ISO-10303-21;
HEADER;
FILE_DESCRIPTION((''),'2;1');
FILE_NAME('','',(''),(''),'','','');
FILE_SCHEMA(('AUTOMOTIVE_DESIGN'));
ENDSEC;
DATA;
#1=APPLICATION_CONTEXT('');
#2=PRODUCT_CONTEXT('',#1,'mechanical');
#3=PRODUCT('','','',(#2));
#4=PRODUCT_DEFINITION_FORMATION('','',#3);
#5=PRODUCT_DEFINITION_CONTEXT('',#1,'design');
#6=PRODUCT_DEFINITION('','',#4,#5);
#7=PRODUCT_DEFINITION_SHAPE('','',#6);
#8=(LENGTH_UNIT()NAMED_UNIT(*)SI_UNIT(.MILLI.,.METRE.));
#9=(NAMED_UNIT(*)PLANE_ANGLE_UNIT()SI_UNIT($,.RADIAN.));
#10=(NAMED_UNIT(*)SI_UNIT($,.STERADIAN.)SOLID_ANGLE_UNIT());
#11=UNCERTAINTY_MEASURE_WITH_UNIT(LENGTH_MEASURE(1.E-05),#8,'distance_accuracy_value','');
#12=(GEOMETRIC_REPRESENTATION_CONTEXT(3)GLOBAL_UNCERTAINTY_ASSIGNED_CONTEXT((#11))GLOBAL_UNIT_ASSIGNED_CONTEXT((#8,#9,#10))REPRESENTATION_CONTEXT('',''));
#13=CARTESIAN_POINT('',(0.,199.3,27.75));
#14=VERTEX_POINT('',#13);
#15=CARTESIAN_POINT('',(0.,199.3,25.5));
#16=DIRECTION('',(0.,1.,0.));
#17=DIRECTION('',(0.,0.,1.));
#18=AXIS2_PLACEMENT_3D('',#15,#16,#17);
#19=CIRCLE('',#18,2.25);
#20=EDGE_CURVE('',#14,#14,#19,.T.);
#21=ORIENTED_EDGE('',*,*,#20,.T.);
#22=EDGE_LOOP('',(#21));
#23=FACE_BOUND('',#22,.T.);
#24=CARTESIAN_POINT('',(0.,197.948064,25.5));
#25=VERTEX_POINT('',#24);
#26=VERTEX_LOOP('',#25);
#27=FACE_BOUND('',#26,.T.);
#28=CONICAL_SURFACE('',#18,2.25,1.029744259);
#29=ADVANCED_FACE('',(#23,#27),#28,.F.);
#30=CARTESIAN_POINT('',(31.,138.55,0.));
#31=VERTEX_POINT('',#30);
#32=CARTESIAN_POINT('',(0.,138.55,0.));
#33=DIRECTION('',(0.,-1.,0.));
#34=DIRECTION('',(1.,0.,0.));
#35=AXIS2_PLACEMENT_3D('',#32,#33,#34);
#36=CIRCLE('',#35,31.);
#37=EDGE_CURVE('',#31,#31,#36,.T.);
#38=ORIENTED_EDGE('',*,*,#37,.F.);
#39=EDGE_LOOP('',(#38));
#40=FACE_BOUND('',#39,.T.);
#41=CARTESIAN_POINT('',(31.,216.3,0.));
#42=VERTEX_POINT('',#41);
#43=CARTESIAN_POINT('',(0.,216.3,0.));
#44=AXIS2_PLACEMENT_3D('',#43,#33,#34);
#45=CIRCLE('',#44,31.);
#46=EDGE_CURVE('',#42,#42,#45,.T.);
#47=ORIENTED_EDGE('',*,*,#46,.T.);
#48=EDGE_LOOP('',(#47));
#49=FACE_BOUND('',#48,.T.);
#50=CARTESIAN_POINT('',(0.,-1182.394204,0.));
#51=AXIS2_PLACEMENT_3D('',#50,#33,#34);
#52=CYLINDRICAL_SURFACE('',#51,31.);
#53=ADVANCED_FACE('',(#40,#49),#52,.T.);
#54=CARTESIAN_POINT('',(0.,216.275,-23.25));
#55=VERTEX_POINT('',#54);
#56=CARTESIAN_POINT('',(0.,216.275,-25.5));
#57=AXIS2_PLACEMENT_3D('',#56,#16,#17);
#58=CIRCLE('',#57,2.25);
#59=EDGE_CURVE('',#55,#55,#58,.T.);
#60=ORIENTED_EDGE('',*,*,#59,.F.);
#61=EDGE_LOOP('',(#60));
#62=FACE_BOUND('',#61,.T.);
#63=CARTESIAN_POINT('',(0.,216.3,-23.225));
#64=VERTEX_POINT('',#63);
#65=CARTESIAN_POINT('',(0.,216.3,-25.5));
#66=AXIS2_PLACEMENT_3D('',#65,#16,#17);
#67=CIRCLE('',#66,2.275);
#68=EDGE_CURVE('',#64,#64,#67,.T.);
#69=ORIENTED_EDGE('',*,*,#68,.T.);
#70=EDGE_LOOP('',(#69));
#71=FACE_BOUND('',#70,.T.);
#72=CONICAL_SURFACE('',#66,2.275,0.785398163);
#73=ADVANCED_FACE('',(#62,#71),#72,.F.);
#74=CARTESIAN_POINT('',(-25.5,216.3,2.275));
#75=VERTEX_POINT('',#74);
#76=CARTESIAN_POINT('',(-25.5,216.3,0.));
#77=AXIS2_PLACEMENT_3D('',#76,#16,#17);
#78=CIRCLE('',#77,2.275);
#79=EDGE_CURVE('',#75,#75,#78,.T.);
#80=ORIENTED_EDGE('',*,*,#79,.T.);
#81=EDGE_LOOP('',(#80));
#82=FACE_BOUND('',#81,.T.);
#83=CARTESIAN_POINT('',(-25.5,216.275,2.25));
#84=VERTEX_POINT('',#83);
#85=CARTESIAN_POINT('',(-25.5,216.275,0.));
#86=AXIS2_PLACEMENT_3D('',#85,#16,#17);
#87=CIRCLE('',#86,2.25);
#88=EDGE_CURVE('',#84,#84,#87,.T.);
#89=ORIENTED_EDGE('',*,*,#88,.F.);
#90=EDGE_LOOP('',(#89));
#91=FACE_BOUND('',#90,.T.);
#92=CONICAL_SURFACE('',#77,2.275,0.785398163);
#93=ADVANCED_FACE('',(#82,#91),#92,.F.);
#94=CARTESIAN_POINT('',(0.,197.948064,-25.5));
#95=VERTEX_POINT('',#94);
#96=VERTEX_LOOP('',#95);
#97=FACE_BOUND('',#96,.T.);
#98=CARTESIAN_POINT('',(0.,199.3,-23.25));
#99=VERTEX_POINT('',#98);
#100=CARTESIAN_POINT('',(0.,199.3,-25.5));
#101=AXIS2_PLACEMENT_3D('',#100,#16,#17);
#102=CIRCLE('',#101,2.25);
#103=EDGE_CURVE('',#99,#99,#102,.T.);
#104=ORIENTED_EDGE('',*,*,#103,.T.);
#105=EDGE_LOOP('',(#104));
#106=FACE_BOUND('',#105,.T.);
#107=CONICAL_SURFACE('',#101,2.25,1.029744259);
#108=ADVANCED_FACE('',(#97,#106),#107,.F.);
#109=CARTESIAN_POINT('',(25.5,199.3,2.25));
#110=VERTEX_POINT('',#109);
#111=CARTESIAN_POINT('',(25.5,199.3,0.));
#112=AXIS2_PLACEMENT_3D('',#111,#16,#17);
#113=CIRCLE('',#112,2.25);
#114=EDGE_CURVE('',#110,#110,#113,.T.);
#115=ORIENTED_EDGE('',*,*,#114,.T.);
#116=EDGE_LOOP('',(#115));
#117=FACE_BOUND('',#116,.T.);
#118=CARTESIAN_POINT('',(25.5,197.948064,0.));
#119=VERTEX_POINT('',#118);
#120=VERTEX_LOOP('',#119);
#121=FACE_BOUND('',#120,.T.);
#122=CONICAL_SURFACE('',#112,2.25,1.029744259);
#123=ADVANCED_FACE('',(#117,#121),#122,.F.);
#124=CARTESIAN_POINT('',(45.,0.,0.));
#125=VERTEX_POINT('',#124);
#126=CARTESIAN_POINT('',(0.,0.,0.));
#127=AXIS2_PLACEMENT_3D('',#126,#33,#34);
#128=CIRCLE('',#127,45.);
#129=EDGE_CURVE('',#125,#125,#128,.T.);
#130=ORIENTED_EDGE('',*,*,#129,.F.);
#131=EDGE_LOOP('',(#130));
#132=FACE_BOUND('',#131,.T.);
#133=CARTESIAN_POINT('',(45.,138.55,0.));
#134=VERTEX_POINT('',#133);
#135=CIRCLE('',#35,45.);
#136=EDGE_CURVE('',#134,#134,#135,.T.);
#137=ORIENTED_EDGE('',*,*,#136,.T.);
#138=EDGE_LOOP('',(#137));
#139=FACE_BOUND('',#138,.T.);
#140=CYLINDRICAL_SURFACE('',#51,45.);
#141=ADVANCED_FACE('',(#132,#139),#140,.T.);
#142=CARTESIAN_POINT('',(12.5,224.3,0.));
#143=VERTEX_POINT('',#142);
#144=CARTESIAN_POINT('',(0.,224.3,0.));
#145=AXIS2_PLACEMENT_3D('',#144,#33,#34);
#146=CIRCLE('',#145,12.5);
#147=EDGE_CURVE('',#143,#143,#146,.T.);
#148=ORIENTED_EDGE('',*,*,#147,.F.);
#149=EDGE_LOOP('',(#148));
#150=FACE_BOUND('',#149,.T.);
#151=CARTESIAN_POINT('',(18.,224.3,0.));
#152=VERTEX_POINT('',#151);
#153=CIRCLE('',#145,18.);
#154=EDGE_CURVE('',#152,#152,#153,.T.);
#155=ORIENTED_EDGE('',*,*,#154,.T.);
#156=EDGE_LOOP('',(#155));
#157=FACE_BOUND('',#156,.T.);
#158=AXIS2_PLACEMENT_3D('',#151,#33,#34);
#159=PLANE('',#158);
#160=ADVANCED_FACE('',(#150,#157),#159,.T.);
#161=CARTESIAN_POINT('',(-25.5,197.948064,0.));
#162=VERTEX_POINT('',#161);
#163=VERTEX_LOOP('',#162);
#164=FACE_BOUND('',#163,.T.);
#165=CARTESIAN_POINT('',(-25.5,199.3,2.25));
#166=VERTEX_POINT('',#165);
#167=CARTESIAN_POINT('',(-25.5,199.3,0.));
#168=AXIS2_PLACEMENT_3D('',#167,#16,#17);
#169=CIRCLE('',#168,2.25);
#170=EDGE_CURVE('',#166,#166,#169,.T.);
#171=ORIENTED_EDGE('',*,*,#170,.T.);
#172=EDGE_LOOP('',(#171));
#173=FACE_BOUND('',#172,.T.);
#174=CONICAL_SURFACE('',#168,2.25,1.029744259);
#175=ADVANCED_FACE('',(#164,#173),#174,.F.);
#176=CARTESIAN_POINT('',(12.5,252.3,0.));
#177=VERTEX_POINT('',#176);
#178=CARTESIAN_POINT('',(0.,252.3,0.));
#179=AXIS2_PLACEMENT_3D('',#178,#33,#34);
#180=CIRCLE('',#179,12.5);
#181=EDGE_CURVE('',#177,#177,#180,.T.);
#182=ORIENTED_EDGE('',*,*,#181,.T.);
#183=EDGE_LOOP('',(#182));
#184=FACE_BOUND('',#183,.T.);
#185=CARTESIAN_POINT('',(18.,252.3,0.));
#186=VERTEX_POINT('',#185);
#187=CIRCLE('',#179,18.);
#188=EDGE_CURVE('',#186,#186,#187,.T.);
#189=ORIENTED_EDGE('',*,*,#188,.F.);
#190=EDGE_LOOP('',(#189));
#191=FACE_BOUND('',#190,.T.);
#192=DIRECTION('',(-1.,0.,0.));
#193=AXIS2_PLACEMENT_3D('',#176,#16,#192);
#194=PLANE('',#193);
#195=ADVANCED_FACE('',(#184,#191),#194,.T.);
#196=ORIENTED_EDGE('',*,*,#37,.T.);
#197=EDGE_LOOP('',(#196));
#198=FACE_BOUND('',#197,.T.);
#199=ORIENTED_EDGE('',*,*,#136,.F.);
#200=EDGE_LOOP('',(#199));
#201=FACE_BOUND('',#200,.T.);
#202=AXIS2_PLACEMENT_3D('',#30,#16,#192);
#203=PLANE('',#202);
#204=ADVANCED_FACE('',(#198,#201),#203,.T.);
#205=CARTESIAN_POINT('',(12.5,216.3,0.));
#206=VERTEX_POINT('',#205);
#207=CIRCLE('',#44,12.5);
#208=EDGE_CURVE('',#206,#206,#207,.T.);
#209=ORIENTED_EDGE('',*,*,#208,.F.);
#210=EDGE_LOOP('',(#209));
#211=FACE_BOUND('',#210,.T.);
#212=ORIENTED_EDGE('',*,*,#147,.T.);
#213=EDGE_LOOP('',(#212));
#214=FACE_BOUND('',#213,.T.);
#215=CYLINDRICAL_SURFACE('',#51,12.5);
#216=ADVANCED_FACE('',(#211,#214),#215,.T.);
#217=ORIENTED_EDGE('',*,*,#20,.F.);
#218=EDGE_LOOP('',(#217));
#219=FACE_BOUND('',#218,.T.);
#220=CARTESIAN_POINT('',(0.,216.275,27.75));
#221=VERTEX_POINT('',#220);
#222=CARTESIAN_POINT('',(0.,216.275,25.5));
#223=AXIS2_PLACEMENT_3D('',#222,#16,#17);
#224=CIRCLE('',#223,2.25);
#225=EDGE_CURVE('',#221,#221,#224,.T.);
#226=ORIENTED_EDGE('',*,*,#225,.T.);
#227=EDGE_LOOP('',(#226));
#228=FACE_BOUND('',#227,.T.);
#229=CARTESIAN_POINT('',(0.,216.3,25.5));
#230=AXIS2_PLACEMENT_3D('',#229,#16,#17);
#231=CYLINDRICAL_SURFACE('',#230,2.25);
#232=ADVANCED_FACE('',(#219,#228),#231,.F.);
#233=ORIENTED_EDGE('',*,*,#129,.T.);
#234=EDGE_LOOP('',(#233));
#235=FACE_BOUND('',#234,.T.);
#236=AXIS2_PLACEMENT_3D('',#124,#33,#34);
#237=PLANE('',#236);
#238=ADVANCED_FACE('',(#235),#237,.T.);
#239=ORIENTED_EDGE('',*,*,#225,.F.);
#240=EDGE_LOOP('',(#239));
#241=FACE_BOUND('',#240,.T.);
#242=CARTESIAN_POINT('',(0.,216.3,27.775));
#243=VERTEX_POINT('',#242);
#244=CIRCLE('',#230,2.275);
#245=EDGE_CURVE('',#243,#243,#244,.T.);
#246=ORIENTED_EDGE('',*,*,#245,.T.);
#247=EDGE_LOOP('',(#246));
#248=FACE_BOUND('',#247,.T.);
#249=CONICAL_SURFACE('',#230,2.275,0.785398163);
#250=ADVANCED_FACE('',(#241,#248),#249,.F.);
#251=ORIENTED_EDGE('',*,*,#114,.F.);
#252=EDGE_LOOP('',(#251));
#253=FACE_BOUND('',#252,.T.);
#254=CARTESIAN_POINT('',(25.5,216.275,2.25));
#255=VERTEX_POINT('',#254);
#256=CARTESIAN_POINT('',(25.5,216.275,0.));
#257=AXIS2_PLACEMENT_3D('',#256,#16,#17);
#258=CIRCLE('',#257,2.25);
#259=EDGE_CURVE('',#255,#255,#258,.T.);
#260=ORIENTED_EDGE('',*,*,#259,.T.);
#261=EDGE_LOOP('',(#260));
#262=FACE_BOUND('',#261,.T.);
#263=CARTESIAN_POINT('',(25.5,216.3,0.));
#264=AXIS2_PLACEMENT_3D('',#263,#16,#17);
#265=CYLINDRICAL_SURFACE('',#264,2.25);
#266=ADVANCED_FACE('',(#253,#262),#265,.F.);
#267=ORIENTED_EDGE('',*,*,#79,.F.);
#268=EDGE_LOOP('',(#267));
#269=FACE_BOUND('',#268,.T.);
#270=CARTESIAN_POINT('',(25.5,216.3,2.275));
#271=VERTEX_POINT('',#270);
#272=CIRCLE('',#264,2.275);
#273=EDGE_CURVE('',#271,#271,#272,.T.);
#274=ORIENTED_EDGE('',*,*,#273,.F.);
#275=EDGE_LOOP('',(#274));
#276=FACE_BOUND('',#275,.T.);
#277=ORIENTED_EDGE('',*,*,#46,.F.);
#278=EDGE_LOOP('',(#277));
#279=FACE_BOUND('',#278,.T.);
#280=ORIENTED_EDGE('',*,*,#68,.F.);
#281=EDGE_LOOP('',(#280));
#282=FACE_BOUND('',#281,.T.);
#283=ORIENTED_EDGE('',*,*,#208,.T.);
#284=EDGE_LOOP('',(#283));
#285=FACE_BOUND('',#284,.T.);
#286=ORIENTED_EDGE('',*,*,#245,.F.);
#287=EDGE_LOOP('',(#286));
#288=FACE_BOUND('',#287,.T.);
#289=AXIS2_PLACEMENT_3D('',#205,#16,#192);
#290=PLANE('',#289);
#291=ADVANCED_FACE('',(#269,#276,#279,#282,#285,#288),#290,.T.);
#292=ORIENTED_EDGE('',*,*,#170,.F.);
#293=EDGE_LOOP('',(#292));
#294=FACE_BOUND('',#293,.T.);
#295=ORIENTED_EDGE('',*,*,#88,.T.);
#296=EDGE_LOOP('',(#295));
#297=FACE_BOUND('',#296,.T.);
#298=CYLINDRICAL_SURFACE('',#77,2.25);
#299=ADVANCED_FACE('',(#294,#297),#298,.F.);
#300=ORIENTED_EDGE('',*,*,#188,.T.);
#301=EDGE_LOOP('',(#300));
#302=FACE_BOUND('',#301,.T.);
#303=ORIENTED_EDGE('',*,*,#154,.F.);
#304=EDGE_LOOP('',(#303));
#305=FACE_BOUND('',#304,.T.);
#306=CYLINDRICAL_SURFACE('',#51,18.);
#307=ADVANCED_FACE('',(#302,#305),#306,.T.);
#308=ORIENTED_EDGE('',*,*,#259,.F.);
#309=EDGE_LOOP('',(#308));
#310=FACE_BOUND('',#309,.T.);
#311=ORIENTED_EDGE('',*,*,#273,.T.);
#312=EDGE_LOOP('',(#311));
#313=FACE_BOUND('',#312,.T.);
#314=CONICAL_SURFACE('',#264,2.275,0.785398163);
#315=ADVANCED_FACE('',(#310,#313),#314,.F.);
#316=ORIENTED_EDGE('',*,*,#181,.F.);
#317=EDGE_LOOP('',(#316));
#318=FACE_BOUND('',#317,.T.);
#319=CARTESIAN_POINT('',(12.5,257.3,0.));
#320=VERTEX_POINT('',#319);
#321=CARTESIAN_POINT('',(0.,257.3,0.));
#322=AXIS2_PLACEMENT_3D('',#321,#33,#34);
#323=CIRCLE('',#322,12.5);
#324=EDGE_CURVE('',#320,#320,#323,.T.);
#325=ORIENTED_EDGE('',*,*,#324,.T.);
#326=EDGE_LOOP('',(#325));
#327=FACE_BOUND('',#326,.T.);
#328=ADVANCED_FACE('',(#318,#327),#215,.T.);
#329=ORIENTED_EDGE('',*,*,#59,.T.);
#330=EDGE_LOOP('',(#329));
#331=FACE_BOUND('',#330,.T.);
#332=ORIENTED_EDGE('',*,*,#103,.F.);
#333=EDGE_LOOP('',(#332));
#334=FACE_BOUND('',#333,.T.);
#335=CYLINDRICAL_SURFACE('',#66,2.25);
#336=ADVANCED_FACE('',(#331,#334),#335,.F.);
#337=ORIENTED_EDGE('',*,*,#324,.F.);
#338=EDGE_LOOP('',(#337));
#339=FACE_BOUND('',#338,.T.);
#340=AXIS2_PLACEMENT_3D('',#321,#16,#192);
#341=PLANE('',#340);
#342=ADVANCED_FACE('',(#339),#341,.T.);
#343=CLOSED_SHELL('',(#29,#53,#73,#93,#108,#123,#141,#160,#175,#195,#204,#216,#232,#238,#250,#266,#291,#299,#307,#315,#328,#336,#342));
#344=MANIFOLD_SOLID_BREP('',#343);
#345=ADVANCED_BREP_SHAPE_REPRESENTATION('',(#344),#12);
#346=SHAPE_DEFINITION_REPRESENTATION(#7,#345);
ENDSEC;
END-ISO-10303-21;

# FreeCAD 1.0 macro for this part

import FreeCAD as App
import Part
import Sketcher
Q = App.Units.Quantity

doc = App.newDocument("Part")
body = doc.addObject("PartDesign::Body", "Body")

# Sketch on XY plane
sketch1 = body.newObject("Sketcher::SketchObject", "Sketch")
sketch1.AttachmentSupport = (doc.getObject("XY_Plane"), [""])
sketch1.MapMode = "FlatFace"
sketch1.addGeometry([
    Part.LineSegment(App.Vector(12, 257, 0), App.Vector(0, 257, 0)),  # 0
    Part.LineSegment(App.Vector(0, 257, 0), App.Vector(0, 0, 0)),  # 1
    Part.LineSegment(App.Vector(0, 0, 0), App.Vector(45, 0, 0)),  # 2
    Part.LineSegment(App.Vector(45, 0, 0), App.Vector(45, 139, 0)),  # 3
    Part.LineSegment(App.Vector(45, 139, 0), App.Vector(31, 139, 0)),  # 4
    Part.LineSegment(App.Vector(31, 139, 0), App.Vector(31, 216, 0)),  # 5
    Part.LineSegment(App.Vector(31, 216, 0), App.Vector(12, 216, 0)),  # 6
    Part.LineSegment(App.Vector(12, 216, 0), App.Vector(12, 224, 0)),  # 7
    Part.LineSegment(App.Vector(12, 224, 0), App.Vector(18, 224, 0)),  # 8
    Part.LineSegment(App.Vector(18, 224, 0), App.Vector(18, 252, 0)),  # 9
    Part.LineSegment(App.Vector(18, 252, 0), App.Vector(12, 252, 0)),  # 10
    Part.LineSegment(App.Vector(12, 252, 0), App.Vector(12, 257, 0)),  # 11
], False)
sketch1.addConstraint([
    Sketcher.Constraint("Coincident", 0, 2, 1, 1),
    Sketcher.Constraint("Coincident", 1, 2, 2, 1),
    Sketcher.Constraint("Coincident", 2, 2, 3, 1),
    Sketcher.Constraint("Coincident", 3, 2, 4, 1),
    Sketcher.Constraint("Coincident", 4, 2, 5, 1),
    Sketcher.Constraint("Coincident", 5, 2, 6, 1),
    Sketcher.Constraint("Coincident", 6, 2, 7, 1),
    Sketcher.Constraint("Coincident", 7, 2, 8, 1),
    Sketcher.Constraint("Coincident", 8, 2, 9, 1),
    Sketcher.Constraint("Coincident", 9, 2, 10, 1),
    Sketcher.Constraint("Coincident", 10, 2, 11, 1),
    Sketcher.Constraint("Coincident", 11, 2, 0, 1),
    Sketcher.Constraint("Horizontal", 0),
    Sketcher.Constraint("Vertical", 1),
    Sketcher.Constraint("Horizontal", 2),
    Sketcher.Constraint("Vertical", 3),
    Sketcher.Constraint("Horizontal", 4),
    Sketcher.Constraint("Vertical", 5),
    Sketcher.Constraint("Horizontal", 6),
    Sketcher.Constraint("Vertical", 7),
    Sketcher.Constraint("Horizontal", 8),
    Sketcher.Constraint("Vertical", 9),
    Sketcher.Constraint("Horizontal", 10),
    Sketcher.Constraint("Vertical", 11),
    Sketcher.Constraint("Coincident", 1, 2, -1, 1),
    Sketcher.Constraint("Vertical", 7, 2, 10, 2),
    Sketcher.Constraint("DistanceX", 2, 1, 2, 2, Q("45 mm")),
    Sketcher.Constraint("DistanceX", 4, 2, 4, 1, Q("14 mm")),
    Sketcher.Constraint("DistanceY", 7, 1, 7, 2, Q("8 mm")),
    Sketcher.Constraint("DistanceY", 9, 1, 9, 2, Q("28 mm")),
    Sketcher.Constraint("DistanceY", 11, 1, 11, 2, Q("5 mm")),
    Sketcher.Constraint("DistanceX", 0, 2, 0, 1, Q("12.5 mm")),
    Sketcher.Constraint("DistanceX", 8, 1, 8, 2, Q("5.5 mm")),
    Sketcher.Constraint("DistanceY", 1, 2, 1, 1, Q("257.3 mm")),
    Sketcher.Constraint("DistanceY", 3, 1, 3, 2, Q("138.55 mm")),
])
revolution = body.newObject("PartDesign::Revolution", "Revolution")
revolution.Profile = sketch1
revolution.ReferenceAxis = (sketch1, ["V_Axis"])
revolution.Angle = 360

# Sketch on XZ plane
sketch2 = body.newObject("Sketcher::SketchObject", "Sketch001")
sketch2.AttachmentSupport = (doc.getObject("XZ_Plane"), [""])
sketch2.MapMode = "FlatFace"
sketch2.AttachmentOffset = App.Placement(App.Vector(0, 0, -216.3), App.Rotation())
sketch2.addGeometry([
    Part.Circle(App.Vector(0, -25.5, 0), App.Vector(0, 0, 1), 2.2),
    Part.Circle(App.Vector(25.5, 0, 0), App.Vector(0, 0, 1), 2.2),
    Part.Circle(App.Vector(0, 25.5, 0), App.Vector(0, 0, 1), 2.2),
    Part.Circle(App.Vector(-25.5, 0, 0), App.Vector(0, 0, 1), 2.2),
], False)
sketch2.addConstraint([
    Sketcher.Constraint("Equal", 0, 1),
    Sketcher.Constraint("Equal", 1, 2),
    Sketcher.Constraint("Equal", 2, 3),
    Sketcher.Constraint("Symmetric", 0, 3, 2, 3, -1, 1),
    Sketcher.Constraint("Symmetric", 1, 3, 3, 3, -1, 1),
    Sketcher.Constraint("PointOnObject", 0, 3, -2),
    Sketcher.Constraint("PointOnObject", 1, 3, -1),
    Sketcher.Constraint("Diameter", 0, Q("4.5 mm")),
    Sketcher.Constraint("DistanceY", 0, 3, 2, 3, Q("51 mm")),
    Sketcher.Constraint("DistanceX", 3, 3, 1, 3, Q("51 mm")),
])
doc.recompute()
hole = body.newObject("PartDesign::Hole", "Hole")
hole.Profile = sketch2
hole.ThreadType = "None"
hole.Diameter = 4.5
hole.DepthType = "Dimension"
hole.Depth = 17
hole.DrillPoint = "Angled"
hole.DrillPointAngle = 118
hole.HoleCutType = "Countersink"
hole.HoleCutDiameter = 4.55
hole.HoleCutCountersinkAngle = 90
hole.Reversed = True

doc.recompute()
